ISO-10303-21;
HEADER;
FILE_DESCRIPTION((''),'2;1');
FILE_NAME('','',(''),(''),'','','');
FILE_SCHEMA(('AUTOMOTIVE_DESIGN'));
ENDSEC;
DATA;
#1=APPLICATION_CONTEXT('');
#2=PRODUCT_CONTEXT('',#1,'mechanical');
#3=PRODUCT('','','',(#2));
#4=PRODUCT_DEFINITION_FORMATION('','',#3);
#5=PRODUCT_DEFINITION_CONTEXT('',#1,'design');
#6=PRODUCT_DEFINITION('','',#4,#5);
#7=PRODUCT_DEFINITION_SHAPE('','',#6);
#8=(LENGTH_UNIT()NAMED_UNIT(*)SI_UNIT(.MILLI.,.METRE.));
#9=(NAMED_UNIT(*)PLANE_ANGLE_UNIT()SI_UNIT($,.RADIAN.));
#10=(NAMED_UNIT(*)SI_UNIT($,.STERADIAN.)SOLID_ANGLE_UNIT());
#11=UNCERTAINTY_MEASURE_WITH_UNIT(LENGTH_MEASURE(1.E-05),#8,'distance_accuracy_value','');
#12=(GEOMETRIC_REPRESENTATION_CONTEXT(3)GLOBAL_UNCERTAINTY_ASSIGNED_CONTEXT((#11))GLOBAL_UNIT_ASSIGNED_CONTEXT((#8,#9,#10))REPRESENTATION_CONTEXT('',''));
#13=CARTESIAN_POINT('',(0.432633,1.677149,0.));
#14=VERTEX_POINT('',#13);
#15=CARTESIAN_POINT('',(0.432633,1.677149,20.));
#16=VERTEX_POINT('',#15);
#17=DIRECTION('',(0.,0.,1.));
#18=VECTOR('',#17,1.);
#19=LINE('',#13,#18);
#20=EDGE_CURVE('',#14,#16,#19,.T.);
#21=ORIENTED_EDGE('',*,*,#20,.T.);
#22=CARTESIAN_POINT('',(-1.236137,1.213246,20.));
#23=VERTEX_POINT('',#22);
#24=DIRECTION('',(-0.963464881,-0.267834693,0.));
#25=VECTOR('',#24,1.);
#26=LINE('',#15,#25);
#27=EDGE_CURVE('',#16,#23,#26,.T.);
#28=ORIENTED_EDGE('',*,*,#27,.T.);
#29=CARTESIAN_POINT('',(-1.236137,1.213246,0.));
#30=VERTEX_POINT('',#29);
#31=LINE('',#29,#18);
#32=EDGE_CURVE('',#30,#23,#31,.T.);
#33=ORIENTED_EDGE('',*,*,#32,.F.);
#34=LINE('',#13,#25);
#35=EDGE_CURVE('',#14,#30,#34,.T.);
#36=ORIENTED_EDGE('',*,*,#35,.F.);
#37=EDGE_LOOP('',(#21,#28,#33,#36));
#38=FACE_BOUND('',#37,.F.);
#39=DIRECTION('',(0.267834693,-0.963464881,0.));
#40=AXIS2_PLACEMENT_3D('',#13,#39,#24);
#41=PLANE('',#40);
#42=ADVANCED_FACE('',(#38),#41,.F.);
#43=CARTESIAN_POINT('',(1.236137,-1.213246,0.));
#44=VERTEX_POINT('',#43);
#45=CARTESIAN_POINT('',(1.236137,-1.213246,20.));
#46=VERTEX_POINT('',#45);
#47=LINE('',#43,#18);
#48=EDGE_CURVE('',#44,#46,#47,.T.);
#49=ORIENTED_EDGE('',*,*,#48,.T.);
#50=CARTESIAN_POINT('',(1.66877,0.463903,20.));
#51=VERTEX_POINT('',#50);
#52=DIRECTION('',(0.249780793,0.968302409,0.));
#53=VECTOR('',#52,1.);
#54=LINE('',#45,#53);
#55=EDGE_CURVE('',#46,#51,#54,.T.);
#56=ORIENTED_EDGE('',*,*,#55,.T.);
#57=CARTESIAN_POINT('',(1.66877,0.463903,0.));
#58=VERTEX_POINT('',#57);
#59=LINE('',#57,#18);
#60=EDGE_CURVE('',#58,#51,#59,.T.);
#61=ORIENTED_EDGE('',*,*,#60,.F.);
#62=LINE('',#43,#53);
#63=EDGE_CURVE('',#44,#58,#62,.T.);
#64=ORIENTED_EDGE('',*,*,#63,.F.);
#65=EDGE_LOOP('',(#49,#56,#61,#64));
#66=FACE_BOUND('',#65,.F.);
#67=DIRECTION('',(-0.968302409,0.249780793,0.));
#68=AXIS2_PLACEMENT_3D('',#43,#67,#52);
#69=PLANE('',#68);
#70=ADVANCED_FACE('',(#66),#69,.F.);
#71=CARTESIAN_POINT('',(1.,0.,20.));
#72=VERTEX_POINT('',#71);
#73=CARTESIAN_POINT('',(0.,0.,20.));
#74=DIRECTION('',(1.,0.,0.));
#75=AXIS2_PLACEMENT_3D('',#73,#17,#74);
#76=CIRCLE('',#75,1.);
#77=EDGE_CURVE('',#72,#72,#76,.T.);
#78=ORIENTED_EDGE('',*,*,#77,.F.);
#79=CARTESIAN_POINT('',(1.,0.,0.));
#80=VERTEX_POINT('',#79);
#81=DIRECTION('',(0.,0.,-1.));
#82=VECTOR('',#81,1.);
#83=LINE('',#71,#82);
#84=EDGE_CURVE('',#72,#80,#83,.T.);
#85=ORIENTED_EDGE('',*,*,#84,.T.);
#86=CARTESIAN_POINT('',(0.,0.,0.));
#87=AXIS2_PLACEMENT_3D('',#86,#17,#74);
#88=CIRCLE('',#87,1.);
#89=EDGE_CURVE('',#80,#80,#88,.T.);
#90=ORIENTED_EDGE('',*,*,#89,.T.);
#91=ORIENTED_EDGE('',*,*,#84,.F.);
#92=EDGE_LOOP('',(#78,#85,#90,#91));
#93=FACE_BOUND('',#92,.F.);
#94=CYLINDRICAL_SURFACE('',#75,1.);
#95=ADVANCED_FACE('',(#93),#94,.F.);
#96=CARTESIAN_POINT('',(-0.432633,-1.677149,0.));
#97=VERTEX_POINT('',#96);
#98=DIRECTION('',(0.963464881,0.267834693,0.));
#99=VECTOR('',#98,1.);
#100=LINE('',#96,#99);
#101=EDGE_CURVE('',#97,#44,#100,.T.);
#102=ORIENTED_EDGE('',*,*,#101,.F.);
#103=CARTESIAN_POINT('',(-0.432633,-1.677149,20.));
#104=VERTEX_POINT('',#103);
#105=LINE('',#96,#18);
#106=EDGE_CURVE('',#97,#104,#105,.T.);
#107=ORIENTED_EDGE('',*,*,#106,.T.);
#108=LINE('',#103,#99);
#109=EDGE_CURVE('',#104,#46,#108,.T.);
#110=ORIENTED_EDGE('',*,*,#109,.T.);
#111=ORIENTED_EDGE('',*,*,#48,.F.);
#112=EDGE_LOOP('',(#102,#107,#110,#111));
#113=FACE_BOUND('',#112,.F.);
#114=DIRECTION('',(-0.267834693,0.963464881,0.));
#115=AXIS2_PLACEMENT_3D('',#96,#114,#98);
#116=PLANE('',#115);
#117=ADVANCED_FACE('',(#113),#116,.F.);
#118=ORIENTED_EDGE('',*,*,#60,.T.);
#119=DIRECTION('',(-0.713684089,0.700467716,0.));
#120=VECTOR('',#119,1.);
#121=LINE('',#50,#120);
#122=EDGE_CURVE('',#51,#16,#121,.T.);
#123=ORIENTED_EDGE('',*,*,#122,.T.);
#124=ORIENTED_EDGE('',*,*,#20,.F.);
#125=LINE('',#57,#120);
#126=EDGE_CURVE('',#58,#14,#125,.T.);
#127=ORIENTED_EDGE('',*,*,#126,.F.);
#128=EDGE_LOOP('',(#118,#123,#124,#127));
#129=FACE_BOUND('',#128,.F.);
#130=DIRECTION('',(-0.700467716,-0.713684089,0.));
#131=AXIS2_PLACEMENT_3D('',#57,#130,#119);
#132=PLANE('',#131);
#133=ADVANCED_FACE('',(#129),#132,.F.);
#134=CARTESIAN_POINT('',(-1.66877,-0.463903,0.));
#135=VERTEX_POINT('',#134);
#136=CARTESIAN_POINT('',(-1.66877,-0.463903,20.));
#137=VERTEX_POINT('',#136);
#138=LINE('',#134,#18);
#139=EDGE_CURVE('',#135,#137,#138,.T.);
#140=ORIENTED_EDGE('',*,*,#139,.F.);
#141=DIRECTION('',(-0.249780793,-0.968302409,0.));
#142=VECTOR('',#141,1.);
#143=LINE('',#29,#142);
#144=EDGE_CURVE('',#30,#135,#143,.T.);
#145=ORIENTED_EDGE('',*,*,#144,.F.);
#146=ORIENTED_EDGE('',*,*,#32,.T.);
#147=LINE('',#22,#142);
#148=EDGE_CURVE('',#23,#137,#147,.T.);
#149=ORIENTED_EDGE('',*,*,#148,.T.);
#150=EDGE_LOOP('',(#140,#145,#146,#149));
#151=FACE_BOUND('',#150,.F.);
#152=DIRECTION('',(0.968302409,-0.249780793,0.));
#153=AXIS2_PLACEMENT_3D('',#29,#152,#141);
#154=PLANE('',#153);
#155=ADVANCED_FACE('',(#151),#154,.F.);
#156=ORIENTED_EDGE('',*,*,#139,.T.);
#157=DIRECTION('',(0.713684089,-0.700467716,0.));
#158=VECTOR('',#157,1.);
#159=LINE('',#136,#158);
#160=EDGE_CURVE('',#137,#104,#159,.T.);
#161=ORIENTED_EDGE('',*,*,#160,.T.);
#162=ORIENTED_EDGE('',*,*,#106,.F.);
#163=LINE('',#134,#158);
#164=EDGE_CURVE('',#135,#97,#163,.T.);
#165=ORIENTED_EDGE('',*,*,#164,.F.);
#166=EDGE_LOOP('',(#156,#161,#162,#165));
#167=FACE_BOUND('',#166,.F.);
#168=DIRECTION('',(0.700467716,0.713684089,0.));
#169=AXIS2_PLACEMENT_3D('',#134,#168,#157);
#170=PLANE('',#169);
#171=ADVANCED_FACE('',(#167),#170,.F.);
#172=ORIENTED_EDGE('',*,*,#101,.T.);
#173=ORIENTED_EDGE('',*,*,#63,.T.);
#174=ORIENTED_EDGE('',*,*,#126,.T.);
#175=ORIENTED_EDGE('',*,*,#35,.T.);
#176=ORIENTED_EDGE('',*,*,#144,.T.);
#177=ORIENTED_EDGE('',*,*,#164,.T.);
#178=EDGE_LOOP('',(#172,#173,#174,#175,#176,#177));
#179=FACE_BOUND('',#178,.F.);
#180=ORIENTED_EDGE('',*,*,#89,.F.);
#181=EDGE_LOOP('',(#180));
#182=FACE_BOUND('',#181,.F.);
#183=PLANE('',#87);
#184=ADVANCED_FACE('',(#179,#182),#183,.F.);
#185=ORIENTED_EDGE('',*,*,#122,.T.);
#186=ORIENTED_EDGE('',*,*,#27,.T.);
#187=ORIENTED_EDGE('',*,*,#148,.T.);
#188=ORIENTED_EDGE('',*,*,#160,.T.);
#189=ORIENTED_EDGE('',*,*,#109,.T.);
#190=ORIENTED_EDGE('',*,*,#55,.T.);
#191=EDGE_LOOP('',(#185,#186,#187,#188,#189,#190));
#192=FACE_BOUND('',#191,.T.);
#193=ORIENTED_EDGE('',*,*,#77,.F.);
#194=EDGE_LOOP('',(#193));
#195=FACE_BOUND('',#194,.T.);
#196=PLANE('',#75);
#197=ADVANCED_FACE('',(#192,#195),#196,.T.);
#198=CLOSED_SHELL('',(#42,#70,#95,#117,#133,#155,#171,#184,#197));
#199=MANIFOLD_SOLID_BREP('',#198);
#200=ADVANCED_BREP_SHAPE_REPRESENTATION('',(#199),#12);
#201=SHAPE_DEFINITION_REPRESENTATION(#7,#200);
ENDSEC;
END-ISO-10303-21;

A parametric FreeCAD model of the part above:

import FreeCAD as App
import Part
import Sketcher
from FreeCAD import Vector
Q = App.Units.Quantity


def add_polygon(sketch, points):
    """Adds a closed chain of lines whose ends are joined by coincident constraints."""
    first, n = sketch.GeometryCount, len(points)
    for a, b in zip(points, points[1:] + points[:1]):
        sketch.addGeometry(Part.LineSegment(App.Vector(*a, 0), App.Vector(*b, 0)), False)
    for i in range(n):
        sketch.addConstraint(Sketcher.Constraint("Coincident", first + i, 2, first + (i + 1) % n, 1))

doc = App.newDocument("Part")
params = doc.addObject("Spreadsheet::Sheet", "Params")
for row, (alias, value) in enumerate([
    ("pad1_length", "20 mm"),
    ("sketch2_diameter", "2 mm"),
    ("pocket1_length", "20 mm"),
], start=1):
    params.set(f"A{row}", alias)
    params.set(f"B{row}", "=" + value)
    params.setAlias(f"B{row}", alias)

body = doc.addObject("PartDesign::Body", "Body")

# Sketch on XY plane
sketch1 = body.newObject("Sketcher::SketchObject", "Sketch")
sketch1.AttachmentSupport = (doc.getObject("XY_Plane"), [""])
sketch1.MapMode = "FlatFace"
add_polygon(sketch1, [(1.2, -1.2), (1.7, 0.5), (0.4, 1.7), (-1.2, 1.2), (-1.7, -0.5), (-0.4, -1.7)])  # lines 0-5
sketch1.addConstraint([
    Sketcher.Constraint("Symmetric", 0, 2, 3, 2, -1, 1),
    Sketcher.Constraint("Symmetric", 1, 2, 4, 2, -1, 1),
    Sketcher.Constraint("Symmetric", 2, 2, 5, 2, -1, 1),
    Sketcher.Constraint("Equal", 0, 1),
    Sketcher.Constraint("Equal", 1, 2),
    Sketcher.Constraint("Distance", 0, Q("1.732051 mm")),
    Sketcher.Constraint("DistanceX", -1, 1, 0, 2, Q("1.66877 mm")),
    Sketcher.Constraint("DistanceY", -1, 1, 1, 2, Q("1.677149 mm")),
    Sketcher.Constraint("DistanceX", 2, 2, 1, 2, Q("1.66877 mm")),
])
pad1 = body.newObject("PartDesign::Pad", "Pad")
pad1.Profile = sketch1
pad1.setExpression("Length", "Params.pad1_length")

# Sketch on XY plane
sketch2 = body.newObject("Sketcher::SketchObject", "Sketch001")
sketch2.AttachmentSupport = (doc.getObject("XY_Plane"), [""])
sketch2.MapMode = "FlatFace"
sketch2.AttachmentOffset = App.Placement(Vector(0, 0, 20), App.Rotation())
sketch2.addGeometry(Part.Circle(Vector(0, 0, 0), Vector(0, 0, 1), 1), False)
sketch2.addConstraint([
    Sketcher.Constraint("Coincident", 0, 3, -1, 1),
    Sketcher.Constraint("Diameter", 0, Q("2 mm")),
])
sketch2.setExpression("Constraints[1]", "Params.sketch2_diameter")
pocket1 = body.newObject("PartDesign::Pocket", "Pocket")
pocket1.Profile = sketch2
pocket1.setExpression("Length", "Params.pocket1_length")

doc.recompute()
